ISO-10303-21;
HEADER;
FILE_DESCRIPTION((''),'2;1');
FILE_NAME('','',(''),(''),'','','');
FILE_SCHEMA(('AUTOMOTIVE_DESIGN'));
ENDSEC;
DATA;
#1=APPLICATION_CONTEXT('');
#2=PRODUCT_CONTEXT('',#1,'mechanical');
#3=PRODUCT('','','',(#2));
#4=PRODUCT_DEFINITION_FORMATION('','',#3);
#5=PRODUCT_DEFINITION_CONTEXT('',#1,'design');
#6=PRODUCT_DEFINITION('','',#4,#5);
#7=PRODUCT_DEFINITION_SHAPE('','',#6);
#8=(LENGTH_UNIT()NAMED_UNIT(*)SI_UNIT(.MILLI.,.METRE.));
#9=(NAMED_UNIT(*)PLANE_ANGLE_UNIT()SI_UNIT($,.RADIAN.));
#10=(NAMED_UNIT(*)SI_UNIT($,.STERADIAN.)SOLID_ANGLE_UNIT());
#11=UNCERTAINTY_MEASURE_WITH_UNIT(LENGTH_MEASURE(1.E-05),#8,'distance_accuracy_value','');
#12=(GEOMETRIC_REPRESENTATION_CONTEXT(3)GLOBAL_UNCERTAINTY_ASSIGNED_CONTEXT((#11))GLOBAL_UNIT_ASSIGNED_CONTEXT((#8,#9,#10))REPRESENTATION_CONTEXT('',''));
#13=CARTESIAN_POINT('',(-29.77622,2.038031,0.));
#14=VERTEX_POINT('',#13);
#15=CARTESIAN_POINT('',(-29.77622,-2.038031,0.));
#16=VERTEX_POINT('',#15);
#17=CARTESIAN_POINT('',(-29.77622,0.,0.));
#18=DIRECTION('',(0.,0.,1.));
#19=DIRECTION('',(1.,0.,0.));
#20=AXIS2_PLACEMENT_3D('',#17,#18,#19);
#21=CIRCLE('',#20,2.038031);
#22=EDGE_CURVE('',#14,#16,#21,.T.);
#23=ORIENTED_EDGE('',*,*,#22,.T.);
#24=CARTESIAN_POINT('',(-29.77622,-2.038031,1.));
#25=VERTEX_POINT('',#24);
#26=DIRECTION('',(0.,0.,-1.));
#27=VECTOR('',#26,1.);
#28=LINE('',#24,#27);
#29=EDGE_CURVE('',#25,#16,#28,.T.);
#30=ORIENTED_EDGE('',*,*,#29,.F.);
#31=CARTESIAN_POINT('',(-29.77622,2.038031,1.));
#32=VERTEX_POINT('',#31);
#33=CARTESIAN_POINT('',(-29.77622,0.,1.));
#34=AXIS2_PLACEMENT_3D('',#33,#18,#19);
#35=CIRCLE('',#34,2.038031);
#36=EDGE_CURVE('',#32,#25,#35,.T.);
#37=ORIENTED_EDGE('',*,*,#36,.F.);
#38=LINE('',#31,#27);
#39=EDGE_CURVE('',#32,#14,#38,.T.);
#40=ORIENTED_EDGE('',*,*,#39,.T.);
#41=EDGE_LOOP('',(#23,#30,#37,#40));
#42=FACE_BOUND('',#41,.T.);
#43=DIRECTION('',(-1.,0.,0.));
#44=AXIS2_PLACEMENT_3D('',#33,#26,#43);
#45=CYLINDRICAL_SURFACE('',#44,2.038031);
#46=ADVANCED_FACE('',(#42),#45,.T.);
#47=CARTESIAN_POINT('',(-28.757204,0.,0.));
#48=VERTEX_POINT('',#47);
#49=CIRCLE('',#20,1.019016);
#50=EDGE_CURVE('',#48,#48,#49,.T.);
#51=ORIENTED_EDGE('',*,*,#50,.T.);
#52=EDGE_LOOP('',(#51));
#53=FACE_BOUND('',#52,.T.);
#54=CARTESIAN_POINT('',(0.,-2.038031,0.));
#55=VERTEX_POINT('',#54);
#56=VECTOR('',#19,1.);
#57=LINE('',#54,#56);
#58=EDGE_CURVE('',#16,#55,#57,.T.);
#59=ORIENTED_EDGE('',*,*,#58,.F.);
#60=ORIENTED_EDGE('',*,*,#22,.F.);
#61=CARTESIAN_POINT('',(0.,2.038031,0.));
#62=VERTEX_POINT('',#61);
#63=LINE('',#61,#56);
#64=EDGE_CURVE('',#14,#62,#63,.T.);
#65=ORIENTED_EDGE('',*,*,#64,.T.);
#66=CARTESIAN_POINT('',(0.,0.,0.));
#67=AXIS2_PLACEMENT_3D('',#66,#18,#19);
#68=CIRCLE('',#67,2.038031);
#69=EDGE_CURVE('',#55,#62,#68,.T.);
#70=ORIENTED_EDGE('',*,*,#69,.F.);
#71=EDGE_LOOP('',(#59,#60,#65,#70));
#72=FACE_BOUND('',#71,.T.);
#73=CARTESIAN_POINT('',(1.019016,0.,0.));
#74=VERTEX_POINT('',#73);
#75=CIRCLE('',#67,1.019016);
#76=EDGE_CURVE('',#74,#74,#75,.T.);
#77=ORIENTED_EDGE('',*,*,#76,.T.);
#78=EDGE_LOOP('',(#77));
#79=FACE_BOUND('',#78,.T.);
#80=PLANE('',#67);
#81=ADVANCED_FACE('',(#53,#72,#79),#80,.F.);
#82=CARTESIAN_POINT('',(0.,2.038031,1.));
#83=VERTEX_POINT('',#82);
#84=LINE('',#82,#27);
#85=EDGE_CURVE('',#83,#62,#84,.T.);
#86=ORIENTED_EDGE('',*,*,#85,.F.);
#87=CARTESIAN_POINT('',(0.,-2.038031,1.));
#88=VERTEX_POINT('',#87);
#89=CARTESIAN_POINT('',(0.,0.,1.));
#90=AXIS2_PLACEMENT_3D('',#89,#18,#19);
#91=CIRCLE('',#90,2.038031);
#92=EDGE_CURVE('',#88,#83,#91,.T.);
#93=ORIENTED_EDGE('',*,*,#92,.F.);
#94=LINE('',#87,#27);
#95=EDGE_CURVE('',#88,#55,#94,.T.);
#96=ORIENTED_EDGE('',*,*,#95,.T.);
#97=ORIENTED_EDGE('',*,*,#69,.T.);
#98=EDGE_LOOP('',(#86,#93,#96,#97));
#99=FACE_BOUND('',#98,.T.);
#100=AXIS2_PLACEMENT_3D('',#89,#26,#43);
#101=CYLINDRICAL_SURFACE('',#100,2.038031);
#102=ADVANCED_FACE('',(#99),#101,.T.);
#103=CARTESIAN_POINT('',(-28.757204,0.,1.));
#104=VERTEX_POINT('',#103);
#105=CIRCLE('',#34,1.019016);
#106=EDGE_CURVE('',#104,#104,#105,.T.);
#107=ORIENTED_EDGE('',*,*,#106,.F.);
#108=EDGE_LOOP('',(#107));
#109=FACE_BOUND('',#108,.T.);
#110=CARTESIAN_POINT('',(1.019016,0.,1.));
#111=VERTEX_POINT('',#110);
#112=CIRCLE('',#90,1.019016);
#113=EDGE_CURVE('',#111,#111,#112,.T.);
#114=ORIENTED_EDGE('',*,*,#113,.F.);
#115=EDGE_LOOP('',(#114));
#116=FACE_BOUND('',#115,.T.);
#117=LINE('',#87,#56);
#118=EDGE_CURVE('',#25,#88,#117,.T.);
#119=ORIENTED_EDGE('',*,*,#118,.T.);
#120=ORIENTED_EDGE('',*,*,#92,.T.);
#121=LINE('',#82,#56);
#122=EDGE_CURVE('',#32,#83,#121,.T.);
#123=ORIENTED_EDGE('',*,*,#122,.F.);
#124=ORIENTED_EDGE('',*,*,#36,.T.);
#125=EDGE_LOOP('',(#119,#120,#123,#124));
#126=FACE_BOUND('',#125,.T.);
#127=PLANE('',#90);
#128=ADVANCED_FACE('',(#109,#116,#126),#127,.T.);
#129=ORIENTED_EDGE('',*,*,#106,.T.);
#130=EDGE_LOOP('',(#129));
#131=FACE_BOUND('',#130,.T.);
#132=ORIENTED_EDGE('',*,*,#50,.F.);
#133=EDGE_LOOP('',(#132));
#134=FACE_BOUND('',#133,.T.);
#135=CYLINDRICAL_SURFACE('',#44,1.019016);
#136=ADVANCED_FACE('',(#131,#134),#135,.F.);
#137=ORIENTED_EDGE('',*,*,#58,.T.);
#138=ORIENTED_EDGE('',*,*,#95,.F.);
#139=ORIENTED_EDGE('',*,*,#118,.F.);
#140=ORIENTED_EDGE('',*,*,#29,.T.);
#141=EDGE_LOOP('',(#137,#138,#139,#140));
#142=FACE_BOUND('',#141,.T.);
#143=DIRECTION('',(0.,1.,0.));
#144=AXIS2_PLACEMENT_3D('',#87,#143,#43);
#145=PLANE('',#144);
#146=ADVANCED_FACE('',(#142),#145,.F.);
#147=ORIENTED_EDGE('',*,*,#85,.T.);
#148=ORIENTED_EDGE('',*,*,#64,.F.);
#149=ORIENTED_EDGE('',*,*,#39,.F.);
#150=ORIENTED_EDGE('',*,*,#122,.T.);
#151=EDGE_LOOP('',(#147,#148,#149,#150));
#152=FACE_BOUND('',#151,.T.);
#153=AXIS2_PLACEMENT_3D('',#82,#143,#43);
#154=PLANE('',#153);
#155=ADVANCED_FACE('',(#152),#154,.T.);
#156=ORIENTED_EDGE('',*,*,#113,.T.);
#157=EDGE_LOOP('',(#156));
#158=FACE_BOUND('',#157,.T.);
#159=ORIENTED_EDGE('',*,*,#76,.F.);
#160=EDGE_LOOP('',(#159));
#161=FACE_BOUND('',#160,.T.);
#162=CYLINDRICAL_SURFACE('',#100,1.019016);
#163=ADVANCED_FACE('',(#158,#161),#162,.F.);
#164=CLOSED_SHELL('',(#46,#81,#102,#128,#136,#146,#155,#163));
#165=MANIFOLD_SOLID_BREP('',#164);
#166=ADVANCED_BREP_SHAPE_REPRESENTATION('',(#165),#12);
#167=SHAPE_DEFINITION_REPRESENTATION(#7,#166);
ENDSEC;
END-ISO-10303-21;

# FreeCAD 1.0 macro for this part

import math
import FreeCAD as App
import Part
import Sketcher
from FreeCAD import Vector

doc = App.newDocument("Part")
body = doc.addObject("PartDesign::Body", "Body")

sketch1 = doc.addObject("Sketcher::SketchObject", "Sketch")
body.addObject(sketch1)
sketch1.AttachmentSupport = (doc.XY_Plane, [""])
sketch1.MapMode = "FlatFace"
sketch1.addGeometry(Part.LineSegment(Vector(0, 2, 0), Vector(-29.8, 2, 0)), False)
sketch1.addGeometry(Part.ArcOfCircle(Part.Circle(Vector(-29.8, 0, 0), Vector(0, 0, 1), 2), math.radians(90), math.radians(270)), False)
sketch1.addGeometry(Part.LineSegment(Vector(-29.8, -2, 0), Vector(0, -2, 0)), False)
sketch1.addGeometry(Part.ArcOfCircle(Part.Circle(Vector(0, 0, 0), Vector(0, 0, 1), 2), math.radians(-90), math.radians(90)), False)
sketch1.addGeometry(Part.Circle(Vector(-29.8, 0, 0), Vector(0, 0, 1), 1), False)
sketch1.addGeometry(Part.Circle(Vector(0, 0, 0), Vector(0, 0, 1), 1), False)
sketch1.addConstraint(Sketcher.Constraint("Tangent", 0, 2, 1, 1))
sketch1.addConstraint(Sketcher.Constraint("Tangent", 1, 2, 2, 1))
sketch1.addConstraint(Sketcher.Constraint("Tangent", 2, 2, 3, 1))
sketch1.addConstraint(Sketcher.Constraint("Tangent", 3, 2, 0, 1))
sketch1.addConstraint(Sketcher.Constraint("Horizontal", 0))
sketch1.addConstraint(Sketcher.Constraint("Horizontal", 2))
sketch1.addConstraint(Sketcher.Constraint("Coincident", 3, 3, -1, 1))
sketch1.addConstraint(Sketcher.Constraint("Coincident", 5, 3, -1, 1))
sketch1.addConstraint(Sketcher.Constraint("Coincident", 4, 3, 1, 3))
sketch1.addConstraint(Sketcher.Constraint("Equal", 4, 5))
sketch1.addConstraint(Sketcher.Constraint("Diameter", 4, 2.038031))
sketch1.addConstraint(Sketcher.Constraint("Radius", 1, 2.038031))
sketch1.addConstraint(Sketcher.Constraint("DistanceX", 0, 2, 0, 1, 29.77622))
pad1 = doc.addObject("PartDesign::Pad", "Pad")
body.addObject(pad1)
pad1.Profile = sketch1
pad1.Length = 1

doc.recompute()
